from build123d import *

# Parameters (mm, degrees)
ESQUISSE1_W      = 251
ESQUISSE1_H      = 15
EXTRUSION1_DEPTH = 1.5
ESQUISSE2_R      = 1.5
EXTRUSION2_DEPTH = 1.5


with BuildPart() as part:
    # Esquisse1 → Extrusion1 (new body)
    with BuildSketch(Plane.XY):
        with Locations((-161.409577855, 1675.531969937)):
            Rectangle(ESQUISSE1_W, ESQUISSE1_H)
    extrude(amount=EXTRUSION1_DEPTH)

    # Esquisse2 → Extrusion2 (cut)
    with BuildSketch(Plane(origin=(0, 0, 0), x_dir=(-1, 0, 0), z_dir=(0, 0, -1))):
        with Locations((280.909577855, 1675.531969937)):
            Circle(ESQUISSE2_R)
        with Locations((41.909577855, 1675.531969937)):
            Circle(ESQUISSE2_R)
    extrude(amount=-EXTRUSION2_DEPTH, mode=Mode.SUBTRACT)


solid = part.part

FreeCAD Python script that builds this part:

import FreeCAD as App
import Part
import Sketcher

doc = App.newDocument("Part")
body = doc.addObject("PartDesign::Body", "Body")

# Sketch on XY plane
sketch1 = body.newObject("Sketcher::SketchObject", "Sketch")
sketch1.AttachmentSupport = (doc.getObject("XY_Plane"), [""])
sketch1.MapMode = "FlatFace"
sketch1.addGeometry([
    Part.LineSegment(App.Vector(-287, 1683, 0), App.Vector(-287, 1668, 0)),
    Part.LineSegment(App.Vector(-287, 1668, 0), App.Vector(-36, 1668, 0)),
    Part.LineSegment(App.Vector(-36, 1668, 0), App.Vector(-36, 1683, 0)),
    Part.LineSegment(App.Vector(-36, 1683, 0), App.Vector(-287, 1683, 0)),
], False)
sketch1.addConstraint([
    Sketcher.Constraint("Coincident", 0, 2, 1, 1),
    Sketcher.Constraint("Coincident", 1, 2, 2, 1),
    Sketcher.Constraint("Coincident", 2, 2, 3, 1),
    Sketcher.Constraint("Coincident", 3, 2, 0, 1),
    Sketcher.Constraint("Vertical", 0),
    Sketcher.Constraint("Horizontal", 1),
    Sketcher.Constraint("Vertical", 2),
    Sketcher.Constraint("Horizontal", 3),
    Sketcher.Constraint("DistanceX", 1, 1, 1, 2, 251.0),
    Sketcher.Constraint("DistanceY", 0, 2, 0, 1, 15.0),
    Sketcher.Constraint("DistanceY", -1, 1, 0, 2, 1668.03197),
    Sketcher.Constraint("DistanceX", 0, 2, -1, 1, 286.909578),
])
pad1 = body.newObject("PartDesign::Pad", "Pad")
pad1.Profile = sketch1
pad1.Length = 1.5

# Sketch on XY plane
sketch2 = body.newObject("Sketcher::SketchObject", "Sketch001")
sketch2.AttachmentSupport = (doc.getObject("XY_Plane"), [""])
sketch2.MapMode = "FlatFace"
sketch2.addGeometry([
    Part.Circle(App.Vector(-280.9, 1675.5, 0), App.Vector(0, 0, 1), 1.5),
    Part.Circle(App.Vector(-41.9, 1675.5, 0), App.Vector(0, 0, 1), 1.5),
], False)
sketch2.addConstraint([
    Sketcher.Constraint("Equal", 0, 1),
    Sketcher.Constraint("Horizontal", 0, 3, 1, 3),
    Sketcher.Constraint("Diameter", 0, 3.0),
    Sketcher.Constraint("DistanceX", 0, 3, 1, 3, 239.0),
    Sketcher.Constraint("DistanceY", -1, 1, 0, 3, 1675.53197),
    Sketcher.Constraint("DistanceX", 0, 3, -1, 1, 280.909578),
])
pocket1 = body.newObject("PartDesign::Pocket", "Pocket")
pocket1.Profile = sketch2
pocket1.Length = 1.5
pocket1.Reversed = True

doc.recompute()
